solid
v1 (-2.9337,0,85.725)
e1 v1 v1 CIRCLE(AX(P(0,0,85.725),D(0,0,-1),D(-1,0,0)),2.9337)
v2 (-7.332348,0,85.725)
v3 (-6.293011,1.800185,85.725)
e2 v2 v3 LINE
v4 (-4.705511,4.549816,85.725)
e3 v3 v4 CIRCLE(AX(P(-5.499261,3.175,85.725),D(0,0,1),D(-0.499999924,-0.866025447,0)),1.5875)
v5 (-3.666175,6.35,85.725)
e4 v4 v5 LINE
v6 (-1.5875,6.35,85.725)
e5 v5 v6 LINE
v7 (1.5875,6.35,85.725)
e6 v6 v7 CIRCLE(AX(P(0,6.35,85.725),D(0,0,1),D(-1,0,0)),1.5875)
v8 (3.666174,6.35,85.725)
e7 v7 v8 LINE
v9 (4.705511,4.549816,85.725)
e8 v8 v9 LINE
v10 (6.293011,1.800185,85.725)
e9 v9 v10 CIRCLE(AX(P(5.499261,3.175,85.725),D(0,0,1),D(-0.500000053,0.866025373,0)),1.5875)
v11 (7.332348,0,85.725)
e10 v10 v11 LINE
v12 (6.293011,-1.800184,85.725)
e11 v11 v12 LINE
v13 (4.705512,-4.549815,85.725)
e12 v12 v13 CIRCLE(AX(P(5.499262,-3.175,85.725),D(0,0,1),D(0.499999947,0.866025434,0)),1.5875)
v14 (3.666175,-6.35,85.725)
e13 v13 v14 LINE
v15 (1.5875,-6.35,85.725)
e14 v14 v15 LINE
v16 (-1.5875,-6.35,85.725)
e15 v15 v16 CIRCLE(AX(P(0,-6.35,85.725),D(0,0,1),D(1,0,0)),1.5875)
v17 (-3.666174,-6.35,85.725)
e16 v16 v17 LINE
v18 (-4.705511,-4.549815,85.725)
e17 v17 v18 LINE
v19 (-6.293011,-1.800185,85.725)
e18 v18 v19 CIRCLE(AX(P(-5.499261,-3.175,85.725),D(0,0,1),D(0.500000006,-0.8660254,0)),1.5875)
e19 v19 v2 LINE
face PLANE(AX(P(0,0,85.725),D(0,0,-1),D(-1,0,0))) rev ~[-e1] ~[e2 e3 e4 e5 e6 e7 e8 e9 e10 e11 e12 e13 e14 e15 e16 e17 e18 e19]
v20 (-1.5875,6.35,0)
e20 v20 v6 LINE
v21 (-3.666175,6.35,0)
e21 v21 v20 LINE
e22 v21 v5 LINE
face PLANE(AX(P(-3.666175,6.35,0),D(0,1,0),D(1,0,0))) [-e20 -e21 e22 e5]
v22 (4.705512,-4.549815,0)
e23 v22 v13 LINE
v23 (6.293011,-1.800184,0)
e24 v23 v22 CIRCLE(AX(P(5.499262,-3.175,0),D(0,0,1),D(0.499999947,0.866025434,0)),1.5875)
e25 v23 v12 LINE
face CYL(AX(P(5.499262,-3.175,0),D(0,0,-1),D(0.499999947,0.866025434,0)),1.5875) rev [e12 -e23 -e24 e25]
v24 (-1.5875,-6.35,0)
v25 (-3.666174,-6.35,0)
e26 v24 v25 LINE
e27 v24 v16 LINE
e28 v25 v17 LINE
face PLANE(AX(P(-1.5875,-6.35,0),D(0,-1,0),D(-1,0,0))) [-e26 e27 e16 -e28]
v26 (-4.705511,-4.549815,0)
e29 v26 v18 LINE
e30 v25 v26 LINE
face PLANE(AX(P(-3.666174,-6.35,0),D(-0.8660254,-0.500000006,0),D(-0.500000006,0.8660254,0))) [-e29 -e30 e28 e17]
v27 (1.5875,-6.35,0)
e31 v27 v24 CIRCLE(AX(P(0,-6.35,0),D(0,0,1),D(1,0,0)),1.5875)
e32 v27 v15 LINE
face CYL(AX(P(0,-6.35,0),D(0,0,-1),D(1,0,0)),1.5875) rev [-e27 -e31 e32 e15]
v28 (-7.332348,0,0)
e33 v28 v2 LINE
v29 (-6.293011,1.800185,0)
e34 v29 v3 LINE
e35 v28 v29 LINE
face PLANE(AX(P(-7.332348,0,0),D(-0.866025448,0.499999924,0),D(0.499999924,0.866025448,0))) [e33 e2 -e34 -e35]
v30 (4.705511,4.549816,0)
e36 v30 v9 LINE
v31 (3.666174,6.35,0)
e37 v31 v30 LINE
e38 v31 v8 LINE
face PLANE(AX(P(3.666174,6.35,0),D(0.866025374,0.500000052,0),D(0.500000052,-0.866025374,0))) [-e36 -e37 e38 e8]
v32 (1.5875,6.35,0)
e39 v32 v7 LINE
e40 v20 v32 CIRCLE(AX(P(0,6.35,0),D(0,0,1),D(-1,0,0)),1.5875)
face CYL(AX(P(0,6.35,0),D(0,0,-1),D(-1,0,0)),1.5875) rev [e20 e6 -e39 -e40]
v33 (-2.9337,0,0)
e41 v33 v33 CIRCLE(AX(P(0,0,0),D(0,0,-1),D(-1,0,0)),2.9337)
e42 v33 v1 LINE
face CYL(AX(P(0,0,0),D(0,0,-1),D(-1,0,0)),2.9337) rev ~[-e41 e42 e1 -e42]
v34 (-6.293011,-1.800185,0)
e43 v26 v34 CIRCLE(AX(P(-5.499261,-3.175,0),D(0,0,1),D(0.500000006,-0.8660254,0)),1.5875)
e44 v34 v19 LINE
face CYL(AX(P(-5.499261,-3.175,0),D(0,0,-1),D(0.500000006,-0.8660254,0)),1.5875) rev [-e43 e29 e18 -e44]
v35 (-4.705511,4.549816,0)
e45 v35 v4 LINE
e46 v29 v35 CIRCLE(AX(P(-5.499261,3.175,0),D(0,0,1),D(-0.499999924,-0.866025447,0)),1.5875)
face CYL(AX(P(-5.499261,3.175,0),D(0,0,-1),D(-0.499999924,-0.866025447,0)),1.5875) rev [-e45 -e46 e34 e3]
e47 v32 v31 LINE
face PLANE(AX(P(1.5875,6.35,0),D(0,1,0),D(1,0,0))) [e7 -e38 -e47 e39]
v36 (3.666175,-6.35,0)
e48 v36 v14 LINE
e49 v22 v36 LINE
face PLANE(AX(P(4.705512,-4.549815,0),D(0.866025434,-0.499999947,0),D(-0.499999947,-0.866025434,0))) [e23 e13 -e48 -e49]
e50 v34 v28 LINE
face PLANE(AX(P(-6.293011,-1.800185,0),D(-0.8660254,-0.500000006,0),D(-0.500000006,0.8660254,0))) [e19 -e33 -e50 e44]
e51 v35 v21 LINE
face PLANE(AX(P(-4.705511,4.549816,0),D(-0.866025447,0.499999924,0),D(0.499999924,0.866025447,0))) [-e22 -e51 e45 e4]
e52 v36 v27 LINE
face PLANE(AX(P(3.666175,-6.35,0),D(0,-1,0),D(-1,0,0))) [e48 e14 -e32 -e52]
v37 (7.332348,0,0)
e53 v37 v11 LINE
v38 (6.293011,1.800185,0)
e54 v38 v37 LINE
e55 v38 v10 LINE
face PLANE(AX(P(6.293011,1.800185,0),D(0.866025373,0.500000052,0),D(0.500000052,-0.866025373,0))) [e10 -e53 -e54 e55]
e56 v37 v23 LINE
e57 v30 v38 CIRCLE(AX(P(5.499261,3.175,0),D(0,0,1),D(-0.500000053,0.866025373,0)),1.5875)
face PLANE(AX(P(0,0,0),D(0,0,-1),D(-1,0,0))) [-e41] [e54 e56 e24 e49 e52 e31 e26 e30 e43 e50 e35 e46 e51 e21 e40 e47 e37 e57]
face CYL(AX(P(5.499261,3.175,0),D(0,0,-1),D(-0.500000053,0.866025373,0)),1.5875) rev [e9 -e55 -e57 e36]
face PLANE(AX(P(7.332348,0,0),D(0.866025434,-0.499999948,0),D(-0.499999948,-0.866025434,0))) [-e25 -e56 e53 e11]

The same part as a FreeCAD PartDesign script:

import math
import FreeCAD as App
import Part
import Sketcher

V = App.Vector
Q = App.Units.Quantity

doc = App.newDocument("Part")
body = doc.addObject("PartDesign::Body", "Body")

# Sketch on XY plane
sketch1 = body.newObject("Sketcher::SketchObject", "Sketch")
sketch1.AttachmentSupport = (doc.getObject("XY_Plane"), [""])
sketch1.MapMode = "FlatFace"
sketch1.addGeometry(Part.LineSegment(V(4.7, -4.5, 0), V(3.7, -6.3, 0)), False)
sketch1.addGeometry(Part.LineSegment(V(3.7, -6.3, 0), V(1.6, -6.3, 0)), False)
sketch1.addGeometry(Part.ArcOfCircle(Part.Circle(V(0, -6.3, 0), V(0, 0, 1), 1.6), math.radians(0), math.radians(180)), False)
sketch1.addGeometry(Part.LineSegment(V(-1.6, -6.3, 0), V(-3.7, -6.3, 0)), False)
sketch1.addGeometry(Part.LineSegment(V(-3.7, -6.3, 0), V(-4.7, -4.5, 0)), False)
sketch1.addGeometry(Part.ArcOfCircle(Part.Circle(V(-5.5, -3.2, 0), V(0, 0, 1), 1.6), math.radians(-60), math.radians(120)), False)
sketch1.addGeometry(Part.LineSegment(V(-6.3, -1.8, 0), V(-7.3, 0, 0)), False)
sketch1.addGeometry(Part.LineSegment(V(-7.3, 0, 0), V(-6.3, 1.8, 0)), False)
sketch1.addGeometry(Part.ArcOfCircle(Part.Circle(V(-5.5, 3.2, 0), V(0, 0, 1), 1.6), math.radians(-120), math.radians(60)), False)
sketch1.addGeometry(Part.LineSegment(V(-4.7, 4.5, 0), V(-3.7, 6.4, 0)), False)
sketch1.addGeometry(Part.LineSegment(V(-3.7, 6.4, 0), V(-1.6, 6.4, 0)), False)
sketch1.addGeometry(Part.ArcOfCircle(Part.Circle(V(0, 6.4, 0), V(0, 0, 1), 1.6), math.radians(180), math.radians(360)), False)
sketch1.addGeometry(Part.LineSegment(V(1.6, 6.4, 0), V(3.7, 6.4, 0)), False)
sketch1.addGeometry(Part.LineSegment(V(3.7, 6.4, 0), V(4.7, 4.5, 0)), False)
sketch1.addGeometry(Part.ArcOfCircle(Part.Circle(V(5.5, 3.2, 0), V(0, 0, 1), 1.6), math.radians(120), math.radians(300)), False)
sketch1.addGeometry(Part.LineSegment(V(6.3, 1.8, 0), V(7.3, 0, 0)), False)
sketch1.addGeometry(Part.LineSegment(V(7.3, 0, 0), V(6.3, -1.8, 0)), False)
sketch1.addGeometry(Part.ArcOfCircle(Part.Circle(V(5.5, -3.2, 0), V(0, 0, 1), 1.6), math.radians(60), math.radians(240)), False)
sketch1.addGeometry(Part.Circle(V(0, 0, 0), V(0, 0, 1), 2.9), False)
sketch1.addConstraint(Sketcher.Constraint("Coincident", 0, 2, 1, 1))
sketch1.addConstraint(Sketcher.Constraint("Coincident", 1, 2, 2, 1))
sketch1.addConstraint(Sketcher.Constraint("Coincident", 2, 2, 3, 1))
sketch1.addConstraint(Sketcher.Constraint("Coincident", 3, 2, 4, 1))
sketch1.addConstraint(Sketcher.Constraint("Coincident", 4, 2, 5, 1))
sketch1.addConstraint(Sketcher.Constraint("Coincident", 5, 2, 6, 1))
sketch1.addConstraint(Sketcher.Constraint("Coincident", 6, 2, 7, 1))
sketch1.addConstraint(Sketcher.Constraint("Coincident", 7, 2, 8, 1))
sketch1.addConstraint(Sketcher.Constraint("Coincident", 8, 2, 9, 1))
sketch1.addConstraint(Sketcher.Constraint("Coincident", 9, 2, 10, 1))
sketch1.addConstraint(Sketcher.Constraint("Coincident", 10, 2, 11, 1))
sketch1.addConstraint(Sketcher.Constraint("Coincident", 11, 2, 12, 1))
sketch1.addConstraint(Sketcher.Constraint("Coincident", 12, 2, 13, 1))
sketch1.addConstraint(Sketcher.Constraint("Coincident", 13, 2, 14, 1))
sketch1.addConstraint(Sketcher.Constraint("Coincident", 14, 2, 15, 1))
sketch1.addConstraint(Sketcher.Constraint("Coincident", 15, 2, 16, 1))
sketch1.addConstraint(Sketcher.Constraint("Coincident", 16, 2, 17, 1))
sketch1.addConstraint(Sketcher.Constraint("Coincident", 17, 2, 0, 1))
sketch1.addConstraint(Sketcher.Constraint("Horizontal", 1))
sketch1.addConstraint(Sketcher.Constraint("Horizontal", 3))
sketch1.addConstraint(Sketcher.Constraint("Horizontal", 10))
sketch1.addConstraint(Sketcher.Constraint("Horizontal", 12))
sketch1.addConstraint(Sketcher.Constraint("Coincident", 18, 3, -1, 1))
sketch1.addConstraint(Sketcher.Constraint("Equal", 2, 5))
sketch1.addConstraint(Sketcher.Constraint("Equal", 5, 8))
sketch1.addConstraint(Sketcher.Constraint("Equal", 8, 11))
sketch1.addConstraint(Sketcher.Constraint("Equal", 11, 14))
sketch1.addConstraint(Sketcher.Constraint("Equal", 14, 17))
sketch1.addConstraint(Sketcher.Constraint("Symmetric", 2, 3, 11, 3, -1, 1))
sketch1.addConstraint(Sketcher.Constraint("Symmetric", 5, 3, 14, 3, -1, 1))
sketch1.addConstraint(Sketcher.Constraint("Symmetric", 8, 3, 17, 3, -1, 1))
sketch1.addConstraint(Sketcher.Constraint("Symmetric", 0, 2, 9, 2, -1, 1))
sketch1.addConstraint(Sketcher.Constraint("Symmetric", 3, 2, 12, 2, -1, 1))
sketch1.addConstraint(Sketcher.Constraint("Symmetric", 6, 2, 15, 2, -1, 1))
sketch1.addConstraint(Sketcher.Constraint("Symmetric", 8, 3, 14, 3, -2))
sketch1.addConstraint(Sketcher.Constraint("Symmetric", 1, 2, 2, 2, -2))
sketch1.addConstraint(Sketcher.Constraint("PointOnObject", 6, 2, -1))
sketch1.addConstraint(Sketcher.Constraint("Parallel", 4, 6))
sketch1.addConstraint(Sketcher.Constraint("Parallel", 0, 7))
sketch1.addConstraint(Sketcher.Constraint("Parallel", 7, 9))
sketch1.addConstraint(Sketcher.Constraint("Parallel", 6, 13))
sketch1.addConstraint(Sketcher.Constraint("Parallel", 13, 15))
sketch1.addConstraint(Sketcher.Constraint("Parallel", 9, 16))
sketch1.addConstraint(Sketcher.Constraint("Horizontal", 2, 3, 0, 2))
sketch1.addConstraint(Sketcher.Constraint("Horizontal", 8, 2, 13, 2))
sketch1.addConstraint(Sketcher.Constraint("Horizontal", 7, 2, 14, 2))
sketch1.addConstraint(Sketcher.Constraint("Equal", 4, 6))
sketch1.addConstraint(Sketcher.Constraint("Diameter", 18, Q("0.231 in")))
sketch1.addConstraint(Sketcher.Constraint("Angle", 0, Q("-119.999997 deg")))
sketch1.addConstraint(Sketcher.Constraint("Radius", 2, Q("0.0625 in")))
sketch1.addConstraint(Sketcher.Constraint("DistanceY", 2, 3, 11, 3, Q("0.5 in")))
sketch1.addConstraint(Sketcher.Constraint("DistanceY", 5, 3, 8, 3, Q("0.25 in")))
sketch1.addConstraint(Sketcher.Constraint("DistanceX", 5, 3, 4, 2, Q("0.03125 in")))
sketch1.addConstraint(Sketcher.Constraint("DistanceX", 1, 2, 1, 1, Q("2.078674 mm")))
pad1 = body.newObject("PartDesign::Pad", "Pad")
pad1.Profile = sketch1
pad1.Length = Q("3.375 in")

doc.recompute()
